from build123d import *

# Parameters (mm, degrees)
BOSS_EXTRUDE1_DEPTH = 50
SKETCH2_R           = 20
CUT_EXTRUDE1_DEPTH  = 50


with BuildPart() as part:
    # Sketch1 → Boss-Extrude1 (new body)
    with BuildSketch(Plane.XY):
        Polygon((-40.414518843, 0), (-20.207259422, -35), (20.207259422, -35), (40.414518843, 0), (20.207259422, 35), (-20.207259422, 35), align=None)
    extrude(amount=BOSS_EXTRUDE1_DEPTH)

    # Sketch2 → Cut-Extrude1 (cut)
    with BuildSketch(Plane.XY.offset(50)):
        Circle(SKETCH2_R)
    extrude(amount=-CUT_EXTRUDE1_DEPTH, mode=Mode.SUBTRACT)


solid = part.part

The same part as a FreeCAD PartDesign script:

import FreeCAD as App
import Part
import Sketcher

V = App.Vector
Q = App.Units.Quantity


def add_polygon(sketch, points):
    """Adds a closed chain of lines whose ends are joined by coincident constraints."""
    first, n = sketch.GeometryCount, len(points)
    for a, b in zip(points, points[1:] + points[:1]):
        sketch.addGeometry(Part.LineSegment(App.Vector(*a, 0), App.Vector(*b, 0)), False)
    for i in range(n):
        sketch.addConstraint(Sketcher.Constraint("Coincident", first + i, 2, first + (i + 1) % n, 1))

doc = App.newDocument("Part")
body = doc.addObject("PartDesign::Body", "Body")

# Sketch on XY plane
sketch1 = body.newObject("Sketcher::SketchObject", "Sketch")
sketch1.AttachmentSupport = (doc.getObject("XY_Plane"), [""])
sketch1.MapMode = "FlatFace"
add_polygon(sketch1, [(-40, 0), (-20, -35), (20, -35), (40, 0), (20, 35), (-20, 35)])  # lines 0-5
sketch1.addConstraint([
    Sketcher.Constraint("Horizontal", 1),
    Sketcher.Constraint("Horizontal", 4),
    Sketcher.Constraint("Symmetric", 0, 2, 3, 2, -1, 1),
    Sketcher.Constraint("Symmetric", 2, 2, 5, 2, -1, 1),
    Sketcher.Constraint("PointOnObject", 2, 2, -1),
    Sketcher.Constraint("Parallel", 2, 5),
    Sketcher.Constraint("Vertical", 1, 2, 3, 2),
    Sketcher.Constraint("Angle", 0, Q("-60 deg")),
    Sketcher.Constraint("DistanceY", 0, 2, -1, 1, Q("35 mm")),
    Sketcher.Constraint("DistanceX", 1, 1, 1, 2, Q("40.414519 mm")),
])
pad1 = body.newObject("PartDesign::Pad", "Pad")
pad1.Profile = sketch1
pad1.Length = 50

# Sketch on XY plane
sketch2 = body.newObject("Sketcher::SketchObject", "Sketch001")
sketch2.AttachmentSupport = (doc.getObject("XY_Plane"), [""])
sketch2.MapMode = "FlatFace"
sketch2.AttachmentOffset = App.Placement(V(0, 0, 50), App.Rotation())
sketch2.addGeometry(Part.Circle(V(0, 0, 0), V(0, 0, 1), 20), False)
sketch2.addConstraint([
    Sketcher.Constraint("Coincident", 0, 3, -1, 1),
    Sketcher.Constraint("Diameter", 0, Q("40 mm")),
])
pocket1 = body.newObject("PartDesign::Pocket", "Pocket")
pocket1.Profile = sketch2
pocket1.Length = 50

doc.recompute()
